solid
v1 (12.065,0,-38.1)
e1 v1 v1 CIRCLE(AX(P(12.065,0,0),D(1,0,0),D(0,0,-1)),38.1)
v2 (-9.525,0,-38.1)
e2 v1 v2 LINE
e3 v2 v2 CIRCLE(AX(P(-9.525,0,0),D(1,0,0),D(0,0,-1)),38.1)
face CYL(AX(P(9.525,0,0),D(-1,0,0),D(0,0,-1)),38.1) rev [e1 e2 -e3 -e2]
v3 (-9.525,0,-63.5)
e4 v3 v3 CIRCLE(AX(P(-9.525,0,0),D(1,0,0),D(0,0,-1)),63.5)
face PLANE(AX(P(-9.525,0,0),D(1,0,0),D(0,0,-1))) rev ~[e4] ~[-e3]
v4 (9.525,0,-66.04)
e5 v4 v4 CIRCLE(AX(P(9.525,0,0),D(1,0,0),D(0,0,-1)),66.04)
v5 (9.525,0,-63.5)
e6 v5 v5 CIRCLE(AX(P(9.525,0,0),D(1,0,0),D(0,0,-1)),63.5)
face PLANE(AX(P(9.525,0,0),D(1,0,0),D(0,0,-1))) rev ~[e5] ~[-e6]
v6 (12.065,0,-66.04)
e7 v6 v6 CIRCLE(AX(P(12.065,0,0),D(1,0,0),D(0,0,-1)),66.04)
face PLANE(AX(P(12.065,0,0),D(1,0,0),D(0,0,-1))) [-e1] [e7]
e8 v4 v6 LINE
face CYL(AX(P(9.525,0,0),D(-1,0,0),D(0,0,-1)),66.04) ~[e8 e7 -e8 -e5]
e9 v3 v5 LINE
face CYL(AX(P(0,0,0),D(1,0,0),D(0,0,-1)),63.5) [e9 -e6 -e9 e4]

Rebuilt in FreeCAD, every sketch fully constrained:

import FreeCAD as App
import Part
import Sketcher
Q = App.Units.Quantity

doc = App.newDocument("Part")
body = doc.addObject("PartDesign::Body", "Body")

# Sketch on YZ plane
sketch1 = doc.addObject("Sketcher::SketchObject", "Sketch")
body.addObject(sketch1)
sketch1.AttachmentSupport = (doc.YZ_Plane, [""])
sketch1.MapMode = "FlatFace"
sketch1.addGeometry([
    Part.Circle(App.Vector(0, 0, 0), App.Vector(0, 0, 1), 64),
    Part.Circle(App.Vector(0, 0, 0), App.Vector(0, 0, 1), 38),
], False)
sketch1.addConstraint([
    Sketcher.Constraint("Coincident", 0, 3, -1, 1),
    Sketcher.Constraint("Coincident", 1, 3, -1, 1),
    Sketcher.Constraint("Diameter", 0, Q("5 in")),
    Sketcher.Constraint("Diameter", 1, Q("3 in")),
])
pad1 = doc.addObject("PartDesign::Pad", "Pad")
body.addObject(pad1)
pad1.Profile = sketch1
pad1.Length = Q("0.75 in")
pad1.Midplane = True

# Sketch on YZ plane
sketch2 = doc.addObject("Sketcher::SketchObject", "Sketch001")
body.addObject(sketch2)
sketch2.AttachmentSupport = (doc.YZ_Plane, [""])
sketch2.MapMode = "FlatFace"
sketch2.AttachmentOffset = App.Placement(App.Vector(0, 0, 0.375 * 25.4), App.Rotation())
sketch2.addGeometry([
    Part.Circle(App.Vector(0, 0, 0), App.Vector(0, 0, 1), 66),
    Part.Circle(App.Vector(0, 0, 0), App.Vector(0, 0, 1), 38),
], False)
sketch2.addConstraint([
    Sketcher.Constraint("Coincident", 0, 3, -1, 1),
    Sketcher.Constraint("Coincident", 1, 3, -1, 1),
    Sketcher.Constraint("Diameter", 1, Q("3 in")),
    Sketcher.Constraint("Diameter", 0, Q("5.2 in")),
])
pad2 = doc.addObject("PartDesign::Pad", "Pad001")
body.addObject(pad2)
pad2.Profile = sketch2
pad2.Length = Q("0.1 in")

doc.recompute()
